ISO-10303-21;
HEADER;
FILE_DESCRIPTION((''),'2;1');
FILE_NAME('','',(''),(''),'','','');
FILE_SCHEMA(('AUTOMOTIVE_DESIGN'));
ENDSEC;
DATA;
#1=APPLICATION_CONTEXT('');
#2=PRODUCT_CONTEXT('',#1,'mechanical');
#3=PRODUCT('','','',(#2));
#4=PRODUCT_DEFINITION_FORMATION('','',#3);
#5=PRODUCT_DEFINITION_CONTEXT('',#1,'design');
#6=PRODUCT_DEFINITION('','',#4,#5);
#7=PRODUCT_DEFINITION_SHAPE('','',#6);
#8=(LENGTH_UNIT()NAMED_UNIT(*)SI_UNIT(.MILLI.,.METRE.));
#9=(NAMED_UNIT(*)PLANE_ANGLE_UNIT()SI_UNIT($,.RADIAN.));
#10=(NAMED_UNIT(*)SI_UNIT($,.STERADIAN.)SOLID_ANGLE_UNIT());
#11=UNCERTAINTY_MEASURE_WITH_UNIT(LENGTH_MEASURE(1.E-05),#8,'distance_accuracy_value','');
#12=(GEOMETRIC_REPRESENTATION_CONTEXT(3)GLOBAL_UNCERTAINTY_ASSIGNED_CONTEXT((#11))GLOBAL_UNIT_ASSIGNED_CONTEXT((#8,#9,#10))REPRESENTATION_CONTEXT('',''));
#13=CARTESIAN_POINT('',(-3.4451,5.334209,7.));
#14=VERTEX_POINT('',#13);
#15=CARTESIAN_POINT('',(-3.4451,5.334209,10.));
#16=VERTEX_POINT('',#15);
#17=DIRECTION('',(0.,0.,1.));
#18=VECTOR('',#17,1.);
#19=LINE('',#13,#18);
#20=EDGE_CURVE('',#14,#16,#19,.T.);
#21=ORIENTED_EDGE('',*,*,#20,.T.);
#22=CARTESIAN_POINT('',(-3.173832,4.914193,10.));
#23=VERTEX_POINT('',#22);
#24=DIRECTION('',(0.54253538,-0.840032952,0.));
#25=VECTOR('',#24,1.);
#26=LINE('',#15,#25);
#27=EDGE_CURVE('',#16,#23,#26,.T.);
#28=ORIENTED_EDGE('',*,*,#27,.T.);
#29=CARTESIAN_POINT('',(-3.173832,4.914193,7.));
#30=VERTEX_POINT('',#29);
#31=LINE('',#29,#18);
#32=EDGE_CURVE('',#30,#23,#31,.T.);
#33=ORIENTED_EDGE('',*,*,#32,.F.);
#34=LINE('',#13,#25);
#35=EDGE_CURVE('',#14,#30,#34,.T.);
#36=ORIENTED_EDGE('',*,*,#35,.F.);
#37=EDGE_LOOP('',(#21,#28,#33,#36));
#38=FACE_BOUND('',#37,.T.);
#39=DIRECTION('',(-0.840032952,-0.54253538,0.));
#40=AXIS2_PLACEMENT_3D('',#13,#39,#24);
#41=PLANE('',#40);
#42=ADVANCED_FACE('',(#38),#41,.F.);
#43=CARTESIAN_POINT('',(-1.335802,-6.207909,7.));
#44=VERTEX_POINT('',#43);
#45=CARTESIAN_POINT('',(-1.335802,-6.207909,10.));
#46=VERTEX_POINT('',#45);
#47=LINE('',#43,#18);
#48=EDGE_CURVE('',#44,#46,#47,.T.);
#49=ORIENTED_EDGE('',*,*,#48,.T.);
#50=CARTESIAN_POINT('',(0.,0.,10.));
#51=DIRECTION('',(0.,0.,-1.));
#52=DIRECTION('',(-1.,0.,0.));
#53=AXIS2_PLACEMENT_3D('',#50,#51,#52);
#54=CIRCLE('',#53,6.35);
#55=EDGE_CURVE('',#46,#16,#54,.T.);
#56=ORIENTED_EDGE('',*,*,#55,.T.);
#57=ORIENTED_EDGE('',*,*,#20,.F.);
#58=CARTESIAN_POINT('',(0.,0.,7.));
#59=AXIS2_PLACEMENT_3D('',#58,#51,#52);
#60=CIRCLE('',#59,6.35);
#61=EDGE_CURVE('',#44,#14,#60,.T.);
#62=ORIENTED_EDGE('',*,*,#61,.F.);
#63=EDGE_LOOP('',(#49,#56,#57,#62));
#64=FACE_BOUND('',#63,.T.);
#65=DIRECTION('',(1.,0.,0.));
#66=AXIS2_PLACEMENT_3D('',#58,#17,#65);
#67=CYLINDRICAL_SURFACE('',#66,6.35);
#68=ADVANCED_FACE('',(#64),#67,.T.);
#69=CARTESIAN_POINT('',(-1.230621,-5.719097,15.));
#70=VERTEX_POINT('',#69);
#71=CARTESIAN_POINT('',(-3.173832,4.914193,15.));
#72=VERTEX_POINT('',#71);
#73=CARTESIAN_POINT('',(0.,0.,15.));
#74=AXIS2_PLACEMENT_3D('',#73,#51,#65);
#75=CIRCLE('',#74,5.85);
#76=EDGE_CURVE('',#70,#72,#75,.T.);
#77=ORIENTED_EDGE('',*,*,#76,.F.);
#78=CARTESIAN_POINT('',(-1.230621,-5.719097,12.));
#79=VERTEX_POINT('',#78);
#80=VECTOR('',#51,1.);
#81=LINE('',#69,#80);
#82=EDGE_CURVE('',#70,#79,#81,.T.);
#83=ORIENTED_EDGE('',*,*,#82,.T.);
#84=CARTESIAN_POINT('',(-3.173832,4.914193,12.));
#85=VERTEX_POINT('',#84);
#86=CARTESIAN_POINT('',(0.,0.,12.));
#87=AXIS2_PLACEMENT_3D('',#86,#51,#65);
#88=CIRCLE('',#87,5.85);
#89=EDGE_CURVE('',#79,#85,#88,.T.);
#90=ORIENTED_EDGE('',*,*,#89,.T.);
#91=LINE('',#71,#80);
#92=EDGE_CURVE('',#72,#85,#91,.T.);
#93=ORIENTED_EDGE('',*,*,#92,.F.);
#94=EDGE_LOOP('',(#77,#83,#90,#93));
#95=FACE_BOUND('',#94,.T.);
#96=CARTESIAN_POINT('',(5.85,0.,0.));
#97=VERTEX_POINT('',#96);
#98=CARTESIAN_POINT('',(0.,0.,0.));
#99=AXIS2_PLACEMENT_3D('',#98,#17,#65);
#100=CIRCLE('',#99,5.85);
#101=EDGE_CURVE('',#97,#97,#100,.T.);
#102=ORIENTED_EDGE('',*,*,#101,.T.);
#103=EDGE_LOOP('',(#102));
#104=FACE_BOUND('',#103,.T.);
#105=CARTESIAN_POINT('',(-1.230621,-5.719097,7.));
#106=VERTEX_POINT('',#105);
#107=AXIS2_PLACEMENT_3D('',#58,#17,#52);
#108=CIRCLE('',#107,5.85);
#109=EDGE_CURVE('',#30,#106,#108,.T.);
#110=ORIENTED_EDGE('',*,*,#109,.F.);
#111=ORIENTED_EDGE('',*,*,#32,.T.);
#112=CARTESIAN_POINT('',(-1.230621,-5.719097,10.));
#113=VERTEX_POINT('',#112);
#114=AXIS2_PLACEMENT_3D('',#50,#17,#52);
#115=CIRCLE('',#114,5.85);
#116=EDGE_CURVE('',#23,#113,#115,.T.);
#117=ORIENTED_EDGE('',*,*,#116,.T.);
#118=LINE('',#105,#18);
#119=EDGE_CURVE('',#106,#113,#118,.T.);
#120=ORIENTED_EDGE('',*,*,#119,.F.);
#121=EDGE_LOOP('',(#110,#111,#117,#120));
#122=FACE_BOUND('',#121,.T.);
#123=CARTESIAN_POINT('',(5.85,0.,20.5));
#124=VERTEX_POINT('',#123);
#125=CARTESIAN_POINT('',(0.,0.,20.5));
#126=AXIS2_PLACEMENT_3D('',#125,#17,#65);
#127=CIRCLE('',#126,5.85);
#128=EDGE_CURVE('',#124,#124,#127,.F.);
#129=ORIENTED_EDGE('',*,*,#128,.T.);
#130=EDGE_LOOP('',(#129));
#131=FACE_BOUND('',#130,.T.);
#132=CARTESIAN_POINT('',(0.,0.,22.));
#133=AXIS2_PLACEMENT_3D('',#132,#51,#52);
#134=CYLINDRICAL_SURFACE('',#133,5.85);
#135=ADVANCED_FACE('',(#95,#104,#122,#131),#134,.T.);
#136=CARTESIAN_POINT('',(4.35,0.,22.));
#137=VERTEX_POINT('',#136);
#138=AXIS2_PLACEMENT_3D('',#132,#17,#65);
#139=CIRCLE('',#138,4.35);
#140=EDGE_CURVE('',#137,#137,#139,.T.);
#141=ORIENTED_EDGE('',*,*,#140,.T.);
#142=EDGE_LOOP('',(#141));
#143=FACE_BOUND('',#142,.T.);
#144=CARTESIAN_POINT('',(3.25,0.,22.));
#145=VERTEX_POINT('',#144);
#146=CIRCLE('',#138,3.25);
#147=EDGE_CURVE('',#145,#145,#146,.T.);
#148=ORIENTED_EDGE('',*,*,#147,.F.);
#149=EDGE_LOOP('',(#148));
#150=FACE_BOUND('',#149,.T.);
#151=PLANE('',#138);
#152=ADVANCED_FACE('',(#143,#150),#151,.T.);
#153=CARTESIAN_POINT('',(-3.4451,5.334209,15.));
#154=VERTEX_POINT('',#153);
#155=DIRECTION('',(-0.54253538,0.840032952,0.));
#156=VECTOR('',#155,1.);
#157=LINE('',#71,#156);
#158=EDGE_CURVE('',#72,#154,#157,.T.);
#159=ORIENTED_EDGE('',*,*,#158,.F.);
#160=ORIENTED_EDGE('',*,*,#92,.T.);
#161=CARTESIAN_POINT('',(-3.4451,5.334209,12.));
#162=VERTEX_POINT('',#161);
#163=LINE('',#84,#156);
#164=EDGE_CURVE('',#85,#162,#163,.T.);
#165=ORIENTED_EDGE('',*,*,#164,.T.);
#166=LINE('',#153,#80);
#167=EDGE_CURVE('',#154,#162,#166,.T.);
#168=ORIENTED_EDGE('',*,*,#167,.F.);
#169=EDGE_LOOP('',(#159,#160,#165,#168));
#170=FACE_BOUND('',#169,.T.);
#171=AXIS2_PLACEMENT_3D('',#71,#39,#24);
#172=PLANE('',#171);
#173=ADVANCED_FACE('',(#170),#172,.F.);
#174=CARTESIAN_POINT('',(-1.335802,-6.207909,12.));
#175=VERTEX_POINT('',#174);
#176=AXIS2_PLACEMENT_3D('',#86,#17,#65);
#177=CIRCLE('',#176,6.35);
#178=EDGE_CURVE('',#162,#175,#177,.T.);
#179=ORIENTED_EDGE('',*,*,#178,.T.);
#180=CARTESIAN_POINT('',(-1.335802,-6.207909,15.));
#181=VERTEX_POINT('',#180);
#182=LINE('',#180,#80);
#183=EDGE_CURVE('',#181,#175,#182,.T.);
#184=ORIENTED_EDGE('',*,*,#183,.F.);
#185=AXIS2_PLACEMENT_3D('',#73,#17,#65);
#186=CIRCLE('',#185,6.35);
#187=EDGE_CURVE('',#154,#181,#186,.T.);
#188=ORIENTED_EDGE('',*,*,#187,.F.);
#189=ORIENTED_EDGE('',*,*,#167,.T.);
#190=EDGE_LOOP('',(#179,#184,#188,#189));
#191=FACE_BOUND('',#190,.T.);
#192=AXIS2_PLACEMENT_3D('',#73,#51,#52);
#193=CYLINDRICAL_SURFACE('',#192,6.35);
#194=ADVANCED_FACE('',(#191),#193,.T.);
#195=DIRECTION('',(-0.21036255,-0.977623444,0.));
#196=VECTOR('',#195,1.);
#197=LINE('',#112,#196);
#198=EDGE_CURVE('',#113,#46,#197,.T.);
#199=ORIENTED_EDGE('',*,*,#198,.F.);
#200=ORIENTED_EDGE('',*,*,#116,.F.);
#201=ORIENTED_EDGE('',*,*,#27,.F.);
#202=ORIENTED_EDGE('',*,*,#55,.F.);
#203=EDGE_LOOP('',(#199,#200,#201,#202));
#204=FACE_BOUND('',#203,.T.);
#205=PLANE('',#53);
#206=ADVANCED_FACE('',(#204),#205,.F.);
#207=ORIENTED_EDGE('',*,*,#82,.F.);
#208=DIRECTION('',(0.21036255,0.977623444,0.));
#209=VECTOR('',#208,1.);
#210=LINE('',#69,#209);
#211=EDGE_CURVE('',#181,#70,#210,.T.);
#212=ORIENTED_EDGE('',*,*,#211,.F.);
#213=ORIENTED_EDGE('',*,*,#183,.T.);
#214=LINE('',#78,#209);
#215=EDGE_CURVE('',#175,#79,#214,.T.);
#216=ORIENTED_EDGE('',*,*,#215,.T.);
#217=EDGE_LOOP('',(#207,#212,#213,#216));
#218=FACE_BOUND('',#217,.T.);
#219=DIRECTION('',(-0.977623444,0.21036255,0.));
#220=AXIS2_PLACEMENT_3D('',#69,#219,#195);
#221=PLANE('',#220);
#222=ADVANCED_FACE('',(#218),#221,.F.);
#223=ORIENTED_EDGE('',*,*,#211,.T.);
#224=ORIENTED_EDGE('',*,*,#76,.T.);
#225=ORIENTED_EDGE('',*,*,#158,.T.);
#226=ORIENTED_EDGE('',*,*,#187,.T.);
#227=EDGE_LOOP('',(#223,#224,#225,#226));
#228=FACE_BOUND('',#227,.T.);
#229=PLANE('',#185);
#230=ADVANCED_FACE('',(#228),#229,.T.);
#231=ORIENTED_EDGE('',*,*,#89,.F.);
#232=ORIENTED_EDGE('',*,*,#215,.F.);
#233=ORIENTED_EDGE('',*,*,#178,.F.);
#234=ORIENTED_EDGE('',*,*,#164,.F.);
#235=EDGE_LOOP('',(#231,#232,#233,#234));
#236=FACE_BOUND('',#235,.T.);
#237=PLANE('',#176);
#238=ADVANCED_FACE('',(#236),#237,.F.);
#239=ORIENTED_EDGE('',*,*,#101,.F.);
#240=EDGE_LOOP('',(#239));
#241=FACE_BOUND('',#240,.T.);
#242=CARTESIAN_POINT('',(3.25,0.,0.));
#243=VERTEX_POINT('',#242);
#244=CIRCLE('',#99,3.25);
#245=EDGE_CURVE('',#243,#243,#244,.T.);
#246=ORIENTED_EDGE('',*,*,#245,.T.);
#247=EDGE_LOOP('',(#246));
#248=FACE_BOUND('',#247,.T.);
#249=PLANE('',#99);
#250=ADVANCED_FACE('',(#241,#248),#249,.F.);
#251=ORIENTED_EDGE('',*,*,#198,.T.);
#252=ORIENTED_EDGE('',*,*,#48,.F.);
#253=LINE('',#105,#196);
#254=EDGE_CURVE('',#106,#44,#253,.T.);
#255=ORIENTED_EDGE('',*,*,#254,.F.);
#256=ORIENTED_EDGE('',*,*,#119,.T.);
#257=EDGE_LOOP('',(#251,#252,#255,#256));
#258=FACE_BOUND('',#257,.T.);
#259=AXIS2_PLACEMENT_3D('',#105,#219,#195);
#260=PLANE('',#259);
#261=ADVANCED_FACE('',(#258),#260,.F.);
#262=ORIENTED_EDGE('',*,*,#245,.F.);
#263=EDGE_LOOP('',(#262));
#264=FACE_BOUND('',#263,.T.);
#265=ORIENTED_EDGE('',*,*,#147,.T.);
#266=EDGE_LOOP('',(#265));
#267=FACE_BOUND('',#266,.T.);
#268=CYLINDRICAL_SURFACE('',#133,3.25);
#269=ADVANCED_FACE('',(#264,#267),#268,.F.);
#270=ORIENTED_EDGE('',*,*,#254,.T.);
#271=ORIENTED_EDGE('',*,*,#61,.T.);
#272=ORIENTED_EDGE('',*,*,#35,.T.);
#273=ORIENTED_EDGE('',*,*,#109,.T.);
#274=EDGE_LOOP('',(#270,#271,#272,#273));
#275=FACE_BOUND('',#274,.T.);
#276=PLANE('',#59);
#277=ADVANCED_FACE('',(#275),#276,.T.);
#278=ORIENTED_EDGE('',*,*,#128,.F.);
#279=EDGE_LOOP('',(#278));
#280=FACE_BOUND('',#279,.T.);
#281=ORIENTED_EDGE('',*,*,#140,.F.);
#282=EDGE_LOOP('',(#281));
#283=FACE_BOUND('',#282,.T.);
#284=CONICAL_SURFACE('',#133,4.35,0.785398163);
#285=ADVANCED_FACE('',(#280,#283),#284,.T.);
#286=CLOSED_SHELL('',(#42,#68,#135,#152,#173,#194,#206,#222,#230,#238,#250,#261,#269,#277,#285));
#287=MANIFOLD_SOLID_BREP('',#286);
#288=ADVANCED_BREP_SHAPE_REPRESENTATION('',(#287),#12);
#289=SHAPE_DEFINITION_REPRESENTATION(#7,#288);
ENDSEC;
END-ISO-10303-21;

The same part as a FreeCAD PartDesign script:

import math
import FreeCAD as App
import Part
import Sketcher


def edges_at(feature, points):
    """Names of the edges that pass closest to the given points."""
    edges = feature.Shape.Edges
    near = lambda p: min(range(len(edges)), key=lambda i: edges[i].distToShape(Part.Vertex(*p))[0])
    return sorted({f"Edge{near(p) + 1}" for p in points})

doc = App.newDocument("Part")
body = doc.addObject("PartDesign::Body", "Body")

# Sketch on XY plane
sketch1 = body.newObject("Sketcher::SketchObject", "Sketch")
sketch1.AttachmentSupport = (doc.getObject("XY_Plane"), [""])
sketch1.MapMode = "FlatFace"
sketch1.addGeometry([
    Part.Circle(App.Vector(0, 0, 0), App.Vector(0, 0, 1), 5.85),
    Part.Circle(App.Vector(0, 0, 0), App.Vector(0, 0, 1), 3.25),
], False)
sketch1.addConstraint([
    Sketcher.Constraint("Coincident", 0, 3, -1, 1),
    Sketcher.Constraint("Coincident", 1, 3, -1, 1),
    Sketcher.Constraint("Diameter", 0, 11.7),
    Sketcher.Constraint("Diameter", 1, 6.5),
])
pad1 = body.newObject("PartDesign::Pad", "Pad")
pad1.Profile = sketch1
pad1.Length = 22
doc.recompute()

chamfer = body.newObject("PartDesign::Chamfer", "Chamfer")
chamfer.Base = (pad1, edges_at(pad1, [(-5.85, 0, 22)]))
chamfer.Size = 1.5

# Sketch on XY plane
sketch2 = body.newObject("Sketcher::SketchObject", "Sketch001")
sketch2.AttachmentSupport = (doc.getObject("XY_Plane"), [""])
sketch2.MapMode = "FlatFace"
sketch2.AttachmentOffset = App.Placement(App.Vector(0, 0, 12), App.Rotation())
sketch2.addGeometry([
    Part.LineSegment(App.Vector(-3.173832, 4.914193, 0), App.Vector(-3.4451, 5.334209, 0)),
    Part.ArcOfCircle(Part.Circle(App.Vector(0, 0, 0), App.Vector(0, 0, 1), 6.35), math.radians(122.856401), math.radians(257.856401)),
    Part.LineSegment(App.Vector(-1.335802, -6.207909, 0), App.Vector(-1.230621, -5.719097, 0)),
    Part.ArcOfCircle(Part.Circle(App.Vector(0, 0, 0), App.Vector(0, 0, 1), 5.85), math.radians(122.856401), math.radians(257.856401)),
], False)
sketch2.addConstraint([
    Sketcher.Constraint("Coincident", 0, 2, 1, 1),
    Sketcher.Constraint("Coincident", 1, 2, 2, 1),
    Sketcher.Constraint("Coincident", 2, 2, 3, 2),
    Sketcher.Constraint("Coincident", 3, 1, 0, 1),
    Sketcher.Constraint("Coincident", 1, 3, -1, 1),
    Sketcher.Constraint("Coincident", 3, 3, -1, 1),
    Sketcher.Constraint("Radius", 1, 6.35),
    Sketcher.Constraint("Radius", 3, 5.85),
    Sketcher.Constraint("DistanceX", 0, 2, -1, 1, 3.4451),
    Sketcher.Constraint("DistanceY", 1, 2, 3, 1, 11.122102),
    Sketcher.Constraint("DistanceY", 1, 2, -1, 1, 6.207909),
    Sketcher.Constraint("DistanceX", 2, 2, -1, 1, 1.230621),
])
pad2 = body.newObject("PartDesign::Pad", "Pad001")
pad2.Profile = sketch2
pad2.Length = 3

# Sketch on XY plane
sketch3 = body.newObject("Sketcher::SketchObject", "Sketch002")
sketch3.AttachmentSupport = (doc.getObject("XY_Plane"), [""])
sketch3.MapMode = "FlatFace"
sketch3.AttachmentOffset = App.Placement(App.Vector(0, 0, 7), App.Rotation())
sketch3.addGeometry([
    Part.LineSegment(App.Vector(-1.230621, -5.719097, 0), App.Vector(-1.335802, -6.207909, 0)),
    Part.ArcOfCircle(Part.Circle(App.Vector(0, 0, 0), App.Vector(0, 0, 1), 6.35), math.radians(122.856401), math.radians(257.856401)),
    Part.LineSegment(App.Vector(-3.4451, 5.334209, 0), App.Vector(-3.173832, 4.914193, 0)),
    Part.ArcOfCircle(Part.Circle(App.Vector(0, 0, 0), App.Vector(0, 0, 1), 5.85), math.radians(122.856401), math.radians(257.856401)),
], False)
sketch3.addConstraint([
    Sketcher.Constraint("Coincident", 0, 2, 1, 2),
    Sketcher.Constraint("Coincident", 1, 1, 2, 1),
    Sketcher.Constraint("Coincident", 2, 2, 3, 1),
    Sketcher.Constraint("Coincident", 3, 2, 0, 1),
    Sketcher.Constraint("Coincident", 1, 3, -1, 1),
    Sketcher.Constraint("Coincident", 3, 3, -1, 1),
    Sketcher.Constraint("Radius", 1, 6.35),
    Sketcher.Constraint("Radius", 3, 5.85),
    Sketcher.Constraint("DistanceX", 1, 1, -1, 1, 3.4451),
    Sketcher.Constraint("DistanceY", 0, 2, 2, 2, 11.122102),
    Sketcher.Constraint("DistanceY", 0, 2, -1, 1, 6.207909),
    Sketcher.Constraint("DistanceX", 3, 2, -1, 1, 1.230621),
])
pad3 = body.newObject("PartDesign::Pad", "Pad002")
pad3.Profile = sketch3
pad3.Length = 3

doc.recompute()
